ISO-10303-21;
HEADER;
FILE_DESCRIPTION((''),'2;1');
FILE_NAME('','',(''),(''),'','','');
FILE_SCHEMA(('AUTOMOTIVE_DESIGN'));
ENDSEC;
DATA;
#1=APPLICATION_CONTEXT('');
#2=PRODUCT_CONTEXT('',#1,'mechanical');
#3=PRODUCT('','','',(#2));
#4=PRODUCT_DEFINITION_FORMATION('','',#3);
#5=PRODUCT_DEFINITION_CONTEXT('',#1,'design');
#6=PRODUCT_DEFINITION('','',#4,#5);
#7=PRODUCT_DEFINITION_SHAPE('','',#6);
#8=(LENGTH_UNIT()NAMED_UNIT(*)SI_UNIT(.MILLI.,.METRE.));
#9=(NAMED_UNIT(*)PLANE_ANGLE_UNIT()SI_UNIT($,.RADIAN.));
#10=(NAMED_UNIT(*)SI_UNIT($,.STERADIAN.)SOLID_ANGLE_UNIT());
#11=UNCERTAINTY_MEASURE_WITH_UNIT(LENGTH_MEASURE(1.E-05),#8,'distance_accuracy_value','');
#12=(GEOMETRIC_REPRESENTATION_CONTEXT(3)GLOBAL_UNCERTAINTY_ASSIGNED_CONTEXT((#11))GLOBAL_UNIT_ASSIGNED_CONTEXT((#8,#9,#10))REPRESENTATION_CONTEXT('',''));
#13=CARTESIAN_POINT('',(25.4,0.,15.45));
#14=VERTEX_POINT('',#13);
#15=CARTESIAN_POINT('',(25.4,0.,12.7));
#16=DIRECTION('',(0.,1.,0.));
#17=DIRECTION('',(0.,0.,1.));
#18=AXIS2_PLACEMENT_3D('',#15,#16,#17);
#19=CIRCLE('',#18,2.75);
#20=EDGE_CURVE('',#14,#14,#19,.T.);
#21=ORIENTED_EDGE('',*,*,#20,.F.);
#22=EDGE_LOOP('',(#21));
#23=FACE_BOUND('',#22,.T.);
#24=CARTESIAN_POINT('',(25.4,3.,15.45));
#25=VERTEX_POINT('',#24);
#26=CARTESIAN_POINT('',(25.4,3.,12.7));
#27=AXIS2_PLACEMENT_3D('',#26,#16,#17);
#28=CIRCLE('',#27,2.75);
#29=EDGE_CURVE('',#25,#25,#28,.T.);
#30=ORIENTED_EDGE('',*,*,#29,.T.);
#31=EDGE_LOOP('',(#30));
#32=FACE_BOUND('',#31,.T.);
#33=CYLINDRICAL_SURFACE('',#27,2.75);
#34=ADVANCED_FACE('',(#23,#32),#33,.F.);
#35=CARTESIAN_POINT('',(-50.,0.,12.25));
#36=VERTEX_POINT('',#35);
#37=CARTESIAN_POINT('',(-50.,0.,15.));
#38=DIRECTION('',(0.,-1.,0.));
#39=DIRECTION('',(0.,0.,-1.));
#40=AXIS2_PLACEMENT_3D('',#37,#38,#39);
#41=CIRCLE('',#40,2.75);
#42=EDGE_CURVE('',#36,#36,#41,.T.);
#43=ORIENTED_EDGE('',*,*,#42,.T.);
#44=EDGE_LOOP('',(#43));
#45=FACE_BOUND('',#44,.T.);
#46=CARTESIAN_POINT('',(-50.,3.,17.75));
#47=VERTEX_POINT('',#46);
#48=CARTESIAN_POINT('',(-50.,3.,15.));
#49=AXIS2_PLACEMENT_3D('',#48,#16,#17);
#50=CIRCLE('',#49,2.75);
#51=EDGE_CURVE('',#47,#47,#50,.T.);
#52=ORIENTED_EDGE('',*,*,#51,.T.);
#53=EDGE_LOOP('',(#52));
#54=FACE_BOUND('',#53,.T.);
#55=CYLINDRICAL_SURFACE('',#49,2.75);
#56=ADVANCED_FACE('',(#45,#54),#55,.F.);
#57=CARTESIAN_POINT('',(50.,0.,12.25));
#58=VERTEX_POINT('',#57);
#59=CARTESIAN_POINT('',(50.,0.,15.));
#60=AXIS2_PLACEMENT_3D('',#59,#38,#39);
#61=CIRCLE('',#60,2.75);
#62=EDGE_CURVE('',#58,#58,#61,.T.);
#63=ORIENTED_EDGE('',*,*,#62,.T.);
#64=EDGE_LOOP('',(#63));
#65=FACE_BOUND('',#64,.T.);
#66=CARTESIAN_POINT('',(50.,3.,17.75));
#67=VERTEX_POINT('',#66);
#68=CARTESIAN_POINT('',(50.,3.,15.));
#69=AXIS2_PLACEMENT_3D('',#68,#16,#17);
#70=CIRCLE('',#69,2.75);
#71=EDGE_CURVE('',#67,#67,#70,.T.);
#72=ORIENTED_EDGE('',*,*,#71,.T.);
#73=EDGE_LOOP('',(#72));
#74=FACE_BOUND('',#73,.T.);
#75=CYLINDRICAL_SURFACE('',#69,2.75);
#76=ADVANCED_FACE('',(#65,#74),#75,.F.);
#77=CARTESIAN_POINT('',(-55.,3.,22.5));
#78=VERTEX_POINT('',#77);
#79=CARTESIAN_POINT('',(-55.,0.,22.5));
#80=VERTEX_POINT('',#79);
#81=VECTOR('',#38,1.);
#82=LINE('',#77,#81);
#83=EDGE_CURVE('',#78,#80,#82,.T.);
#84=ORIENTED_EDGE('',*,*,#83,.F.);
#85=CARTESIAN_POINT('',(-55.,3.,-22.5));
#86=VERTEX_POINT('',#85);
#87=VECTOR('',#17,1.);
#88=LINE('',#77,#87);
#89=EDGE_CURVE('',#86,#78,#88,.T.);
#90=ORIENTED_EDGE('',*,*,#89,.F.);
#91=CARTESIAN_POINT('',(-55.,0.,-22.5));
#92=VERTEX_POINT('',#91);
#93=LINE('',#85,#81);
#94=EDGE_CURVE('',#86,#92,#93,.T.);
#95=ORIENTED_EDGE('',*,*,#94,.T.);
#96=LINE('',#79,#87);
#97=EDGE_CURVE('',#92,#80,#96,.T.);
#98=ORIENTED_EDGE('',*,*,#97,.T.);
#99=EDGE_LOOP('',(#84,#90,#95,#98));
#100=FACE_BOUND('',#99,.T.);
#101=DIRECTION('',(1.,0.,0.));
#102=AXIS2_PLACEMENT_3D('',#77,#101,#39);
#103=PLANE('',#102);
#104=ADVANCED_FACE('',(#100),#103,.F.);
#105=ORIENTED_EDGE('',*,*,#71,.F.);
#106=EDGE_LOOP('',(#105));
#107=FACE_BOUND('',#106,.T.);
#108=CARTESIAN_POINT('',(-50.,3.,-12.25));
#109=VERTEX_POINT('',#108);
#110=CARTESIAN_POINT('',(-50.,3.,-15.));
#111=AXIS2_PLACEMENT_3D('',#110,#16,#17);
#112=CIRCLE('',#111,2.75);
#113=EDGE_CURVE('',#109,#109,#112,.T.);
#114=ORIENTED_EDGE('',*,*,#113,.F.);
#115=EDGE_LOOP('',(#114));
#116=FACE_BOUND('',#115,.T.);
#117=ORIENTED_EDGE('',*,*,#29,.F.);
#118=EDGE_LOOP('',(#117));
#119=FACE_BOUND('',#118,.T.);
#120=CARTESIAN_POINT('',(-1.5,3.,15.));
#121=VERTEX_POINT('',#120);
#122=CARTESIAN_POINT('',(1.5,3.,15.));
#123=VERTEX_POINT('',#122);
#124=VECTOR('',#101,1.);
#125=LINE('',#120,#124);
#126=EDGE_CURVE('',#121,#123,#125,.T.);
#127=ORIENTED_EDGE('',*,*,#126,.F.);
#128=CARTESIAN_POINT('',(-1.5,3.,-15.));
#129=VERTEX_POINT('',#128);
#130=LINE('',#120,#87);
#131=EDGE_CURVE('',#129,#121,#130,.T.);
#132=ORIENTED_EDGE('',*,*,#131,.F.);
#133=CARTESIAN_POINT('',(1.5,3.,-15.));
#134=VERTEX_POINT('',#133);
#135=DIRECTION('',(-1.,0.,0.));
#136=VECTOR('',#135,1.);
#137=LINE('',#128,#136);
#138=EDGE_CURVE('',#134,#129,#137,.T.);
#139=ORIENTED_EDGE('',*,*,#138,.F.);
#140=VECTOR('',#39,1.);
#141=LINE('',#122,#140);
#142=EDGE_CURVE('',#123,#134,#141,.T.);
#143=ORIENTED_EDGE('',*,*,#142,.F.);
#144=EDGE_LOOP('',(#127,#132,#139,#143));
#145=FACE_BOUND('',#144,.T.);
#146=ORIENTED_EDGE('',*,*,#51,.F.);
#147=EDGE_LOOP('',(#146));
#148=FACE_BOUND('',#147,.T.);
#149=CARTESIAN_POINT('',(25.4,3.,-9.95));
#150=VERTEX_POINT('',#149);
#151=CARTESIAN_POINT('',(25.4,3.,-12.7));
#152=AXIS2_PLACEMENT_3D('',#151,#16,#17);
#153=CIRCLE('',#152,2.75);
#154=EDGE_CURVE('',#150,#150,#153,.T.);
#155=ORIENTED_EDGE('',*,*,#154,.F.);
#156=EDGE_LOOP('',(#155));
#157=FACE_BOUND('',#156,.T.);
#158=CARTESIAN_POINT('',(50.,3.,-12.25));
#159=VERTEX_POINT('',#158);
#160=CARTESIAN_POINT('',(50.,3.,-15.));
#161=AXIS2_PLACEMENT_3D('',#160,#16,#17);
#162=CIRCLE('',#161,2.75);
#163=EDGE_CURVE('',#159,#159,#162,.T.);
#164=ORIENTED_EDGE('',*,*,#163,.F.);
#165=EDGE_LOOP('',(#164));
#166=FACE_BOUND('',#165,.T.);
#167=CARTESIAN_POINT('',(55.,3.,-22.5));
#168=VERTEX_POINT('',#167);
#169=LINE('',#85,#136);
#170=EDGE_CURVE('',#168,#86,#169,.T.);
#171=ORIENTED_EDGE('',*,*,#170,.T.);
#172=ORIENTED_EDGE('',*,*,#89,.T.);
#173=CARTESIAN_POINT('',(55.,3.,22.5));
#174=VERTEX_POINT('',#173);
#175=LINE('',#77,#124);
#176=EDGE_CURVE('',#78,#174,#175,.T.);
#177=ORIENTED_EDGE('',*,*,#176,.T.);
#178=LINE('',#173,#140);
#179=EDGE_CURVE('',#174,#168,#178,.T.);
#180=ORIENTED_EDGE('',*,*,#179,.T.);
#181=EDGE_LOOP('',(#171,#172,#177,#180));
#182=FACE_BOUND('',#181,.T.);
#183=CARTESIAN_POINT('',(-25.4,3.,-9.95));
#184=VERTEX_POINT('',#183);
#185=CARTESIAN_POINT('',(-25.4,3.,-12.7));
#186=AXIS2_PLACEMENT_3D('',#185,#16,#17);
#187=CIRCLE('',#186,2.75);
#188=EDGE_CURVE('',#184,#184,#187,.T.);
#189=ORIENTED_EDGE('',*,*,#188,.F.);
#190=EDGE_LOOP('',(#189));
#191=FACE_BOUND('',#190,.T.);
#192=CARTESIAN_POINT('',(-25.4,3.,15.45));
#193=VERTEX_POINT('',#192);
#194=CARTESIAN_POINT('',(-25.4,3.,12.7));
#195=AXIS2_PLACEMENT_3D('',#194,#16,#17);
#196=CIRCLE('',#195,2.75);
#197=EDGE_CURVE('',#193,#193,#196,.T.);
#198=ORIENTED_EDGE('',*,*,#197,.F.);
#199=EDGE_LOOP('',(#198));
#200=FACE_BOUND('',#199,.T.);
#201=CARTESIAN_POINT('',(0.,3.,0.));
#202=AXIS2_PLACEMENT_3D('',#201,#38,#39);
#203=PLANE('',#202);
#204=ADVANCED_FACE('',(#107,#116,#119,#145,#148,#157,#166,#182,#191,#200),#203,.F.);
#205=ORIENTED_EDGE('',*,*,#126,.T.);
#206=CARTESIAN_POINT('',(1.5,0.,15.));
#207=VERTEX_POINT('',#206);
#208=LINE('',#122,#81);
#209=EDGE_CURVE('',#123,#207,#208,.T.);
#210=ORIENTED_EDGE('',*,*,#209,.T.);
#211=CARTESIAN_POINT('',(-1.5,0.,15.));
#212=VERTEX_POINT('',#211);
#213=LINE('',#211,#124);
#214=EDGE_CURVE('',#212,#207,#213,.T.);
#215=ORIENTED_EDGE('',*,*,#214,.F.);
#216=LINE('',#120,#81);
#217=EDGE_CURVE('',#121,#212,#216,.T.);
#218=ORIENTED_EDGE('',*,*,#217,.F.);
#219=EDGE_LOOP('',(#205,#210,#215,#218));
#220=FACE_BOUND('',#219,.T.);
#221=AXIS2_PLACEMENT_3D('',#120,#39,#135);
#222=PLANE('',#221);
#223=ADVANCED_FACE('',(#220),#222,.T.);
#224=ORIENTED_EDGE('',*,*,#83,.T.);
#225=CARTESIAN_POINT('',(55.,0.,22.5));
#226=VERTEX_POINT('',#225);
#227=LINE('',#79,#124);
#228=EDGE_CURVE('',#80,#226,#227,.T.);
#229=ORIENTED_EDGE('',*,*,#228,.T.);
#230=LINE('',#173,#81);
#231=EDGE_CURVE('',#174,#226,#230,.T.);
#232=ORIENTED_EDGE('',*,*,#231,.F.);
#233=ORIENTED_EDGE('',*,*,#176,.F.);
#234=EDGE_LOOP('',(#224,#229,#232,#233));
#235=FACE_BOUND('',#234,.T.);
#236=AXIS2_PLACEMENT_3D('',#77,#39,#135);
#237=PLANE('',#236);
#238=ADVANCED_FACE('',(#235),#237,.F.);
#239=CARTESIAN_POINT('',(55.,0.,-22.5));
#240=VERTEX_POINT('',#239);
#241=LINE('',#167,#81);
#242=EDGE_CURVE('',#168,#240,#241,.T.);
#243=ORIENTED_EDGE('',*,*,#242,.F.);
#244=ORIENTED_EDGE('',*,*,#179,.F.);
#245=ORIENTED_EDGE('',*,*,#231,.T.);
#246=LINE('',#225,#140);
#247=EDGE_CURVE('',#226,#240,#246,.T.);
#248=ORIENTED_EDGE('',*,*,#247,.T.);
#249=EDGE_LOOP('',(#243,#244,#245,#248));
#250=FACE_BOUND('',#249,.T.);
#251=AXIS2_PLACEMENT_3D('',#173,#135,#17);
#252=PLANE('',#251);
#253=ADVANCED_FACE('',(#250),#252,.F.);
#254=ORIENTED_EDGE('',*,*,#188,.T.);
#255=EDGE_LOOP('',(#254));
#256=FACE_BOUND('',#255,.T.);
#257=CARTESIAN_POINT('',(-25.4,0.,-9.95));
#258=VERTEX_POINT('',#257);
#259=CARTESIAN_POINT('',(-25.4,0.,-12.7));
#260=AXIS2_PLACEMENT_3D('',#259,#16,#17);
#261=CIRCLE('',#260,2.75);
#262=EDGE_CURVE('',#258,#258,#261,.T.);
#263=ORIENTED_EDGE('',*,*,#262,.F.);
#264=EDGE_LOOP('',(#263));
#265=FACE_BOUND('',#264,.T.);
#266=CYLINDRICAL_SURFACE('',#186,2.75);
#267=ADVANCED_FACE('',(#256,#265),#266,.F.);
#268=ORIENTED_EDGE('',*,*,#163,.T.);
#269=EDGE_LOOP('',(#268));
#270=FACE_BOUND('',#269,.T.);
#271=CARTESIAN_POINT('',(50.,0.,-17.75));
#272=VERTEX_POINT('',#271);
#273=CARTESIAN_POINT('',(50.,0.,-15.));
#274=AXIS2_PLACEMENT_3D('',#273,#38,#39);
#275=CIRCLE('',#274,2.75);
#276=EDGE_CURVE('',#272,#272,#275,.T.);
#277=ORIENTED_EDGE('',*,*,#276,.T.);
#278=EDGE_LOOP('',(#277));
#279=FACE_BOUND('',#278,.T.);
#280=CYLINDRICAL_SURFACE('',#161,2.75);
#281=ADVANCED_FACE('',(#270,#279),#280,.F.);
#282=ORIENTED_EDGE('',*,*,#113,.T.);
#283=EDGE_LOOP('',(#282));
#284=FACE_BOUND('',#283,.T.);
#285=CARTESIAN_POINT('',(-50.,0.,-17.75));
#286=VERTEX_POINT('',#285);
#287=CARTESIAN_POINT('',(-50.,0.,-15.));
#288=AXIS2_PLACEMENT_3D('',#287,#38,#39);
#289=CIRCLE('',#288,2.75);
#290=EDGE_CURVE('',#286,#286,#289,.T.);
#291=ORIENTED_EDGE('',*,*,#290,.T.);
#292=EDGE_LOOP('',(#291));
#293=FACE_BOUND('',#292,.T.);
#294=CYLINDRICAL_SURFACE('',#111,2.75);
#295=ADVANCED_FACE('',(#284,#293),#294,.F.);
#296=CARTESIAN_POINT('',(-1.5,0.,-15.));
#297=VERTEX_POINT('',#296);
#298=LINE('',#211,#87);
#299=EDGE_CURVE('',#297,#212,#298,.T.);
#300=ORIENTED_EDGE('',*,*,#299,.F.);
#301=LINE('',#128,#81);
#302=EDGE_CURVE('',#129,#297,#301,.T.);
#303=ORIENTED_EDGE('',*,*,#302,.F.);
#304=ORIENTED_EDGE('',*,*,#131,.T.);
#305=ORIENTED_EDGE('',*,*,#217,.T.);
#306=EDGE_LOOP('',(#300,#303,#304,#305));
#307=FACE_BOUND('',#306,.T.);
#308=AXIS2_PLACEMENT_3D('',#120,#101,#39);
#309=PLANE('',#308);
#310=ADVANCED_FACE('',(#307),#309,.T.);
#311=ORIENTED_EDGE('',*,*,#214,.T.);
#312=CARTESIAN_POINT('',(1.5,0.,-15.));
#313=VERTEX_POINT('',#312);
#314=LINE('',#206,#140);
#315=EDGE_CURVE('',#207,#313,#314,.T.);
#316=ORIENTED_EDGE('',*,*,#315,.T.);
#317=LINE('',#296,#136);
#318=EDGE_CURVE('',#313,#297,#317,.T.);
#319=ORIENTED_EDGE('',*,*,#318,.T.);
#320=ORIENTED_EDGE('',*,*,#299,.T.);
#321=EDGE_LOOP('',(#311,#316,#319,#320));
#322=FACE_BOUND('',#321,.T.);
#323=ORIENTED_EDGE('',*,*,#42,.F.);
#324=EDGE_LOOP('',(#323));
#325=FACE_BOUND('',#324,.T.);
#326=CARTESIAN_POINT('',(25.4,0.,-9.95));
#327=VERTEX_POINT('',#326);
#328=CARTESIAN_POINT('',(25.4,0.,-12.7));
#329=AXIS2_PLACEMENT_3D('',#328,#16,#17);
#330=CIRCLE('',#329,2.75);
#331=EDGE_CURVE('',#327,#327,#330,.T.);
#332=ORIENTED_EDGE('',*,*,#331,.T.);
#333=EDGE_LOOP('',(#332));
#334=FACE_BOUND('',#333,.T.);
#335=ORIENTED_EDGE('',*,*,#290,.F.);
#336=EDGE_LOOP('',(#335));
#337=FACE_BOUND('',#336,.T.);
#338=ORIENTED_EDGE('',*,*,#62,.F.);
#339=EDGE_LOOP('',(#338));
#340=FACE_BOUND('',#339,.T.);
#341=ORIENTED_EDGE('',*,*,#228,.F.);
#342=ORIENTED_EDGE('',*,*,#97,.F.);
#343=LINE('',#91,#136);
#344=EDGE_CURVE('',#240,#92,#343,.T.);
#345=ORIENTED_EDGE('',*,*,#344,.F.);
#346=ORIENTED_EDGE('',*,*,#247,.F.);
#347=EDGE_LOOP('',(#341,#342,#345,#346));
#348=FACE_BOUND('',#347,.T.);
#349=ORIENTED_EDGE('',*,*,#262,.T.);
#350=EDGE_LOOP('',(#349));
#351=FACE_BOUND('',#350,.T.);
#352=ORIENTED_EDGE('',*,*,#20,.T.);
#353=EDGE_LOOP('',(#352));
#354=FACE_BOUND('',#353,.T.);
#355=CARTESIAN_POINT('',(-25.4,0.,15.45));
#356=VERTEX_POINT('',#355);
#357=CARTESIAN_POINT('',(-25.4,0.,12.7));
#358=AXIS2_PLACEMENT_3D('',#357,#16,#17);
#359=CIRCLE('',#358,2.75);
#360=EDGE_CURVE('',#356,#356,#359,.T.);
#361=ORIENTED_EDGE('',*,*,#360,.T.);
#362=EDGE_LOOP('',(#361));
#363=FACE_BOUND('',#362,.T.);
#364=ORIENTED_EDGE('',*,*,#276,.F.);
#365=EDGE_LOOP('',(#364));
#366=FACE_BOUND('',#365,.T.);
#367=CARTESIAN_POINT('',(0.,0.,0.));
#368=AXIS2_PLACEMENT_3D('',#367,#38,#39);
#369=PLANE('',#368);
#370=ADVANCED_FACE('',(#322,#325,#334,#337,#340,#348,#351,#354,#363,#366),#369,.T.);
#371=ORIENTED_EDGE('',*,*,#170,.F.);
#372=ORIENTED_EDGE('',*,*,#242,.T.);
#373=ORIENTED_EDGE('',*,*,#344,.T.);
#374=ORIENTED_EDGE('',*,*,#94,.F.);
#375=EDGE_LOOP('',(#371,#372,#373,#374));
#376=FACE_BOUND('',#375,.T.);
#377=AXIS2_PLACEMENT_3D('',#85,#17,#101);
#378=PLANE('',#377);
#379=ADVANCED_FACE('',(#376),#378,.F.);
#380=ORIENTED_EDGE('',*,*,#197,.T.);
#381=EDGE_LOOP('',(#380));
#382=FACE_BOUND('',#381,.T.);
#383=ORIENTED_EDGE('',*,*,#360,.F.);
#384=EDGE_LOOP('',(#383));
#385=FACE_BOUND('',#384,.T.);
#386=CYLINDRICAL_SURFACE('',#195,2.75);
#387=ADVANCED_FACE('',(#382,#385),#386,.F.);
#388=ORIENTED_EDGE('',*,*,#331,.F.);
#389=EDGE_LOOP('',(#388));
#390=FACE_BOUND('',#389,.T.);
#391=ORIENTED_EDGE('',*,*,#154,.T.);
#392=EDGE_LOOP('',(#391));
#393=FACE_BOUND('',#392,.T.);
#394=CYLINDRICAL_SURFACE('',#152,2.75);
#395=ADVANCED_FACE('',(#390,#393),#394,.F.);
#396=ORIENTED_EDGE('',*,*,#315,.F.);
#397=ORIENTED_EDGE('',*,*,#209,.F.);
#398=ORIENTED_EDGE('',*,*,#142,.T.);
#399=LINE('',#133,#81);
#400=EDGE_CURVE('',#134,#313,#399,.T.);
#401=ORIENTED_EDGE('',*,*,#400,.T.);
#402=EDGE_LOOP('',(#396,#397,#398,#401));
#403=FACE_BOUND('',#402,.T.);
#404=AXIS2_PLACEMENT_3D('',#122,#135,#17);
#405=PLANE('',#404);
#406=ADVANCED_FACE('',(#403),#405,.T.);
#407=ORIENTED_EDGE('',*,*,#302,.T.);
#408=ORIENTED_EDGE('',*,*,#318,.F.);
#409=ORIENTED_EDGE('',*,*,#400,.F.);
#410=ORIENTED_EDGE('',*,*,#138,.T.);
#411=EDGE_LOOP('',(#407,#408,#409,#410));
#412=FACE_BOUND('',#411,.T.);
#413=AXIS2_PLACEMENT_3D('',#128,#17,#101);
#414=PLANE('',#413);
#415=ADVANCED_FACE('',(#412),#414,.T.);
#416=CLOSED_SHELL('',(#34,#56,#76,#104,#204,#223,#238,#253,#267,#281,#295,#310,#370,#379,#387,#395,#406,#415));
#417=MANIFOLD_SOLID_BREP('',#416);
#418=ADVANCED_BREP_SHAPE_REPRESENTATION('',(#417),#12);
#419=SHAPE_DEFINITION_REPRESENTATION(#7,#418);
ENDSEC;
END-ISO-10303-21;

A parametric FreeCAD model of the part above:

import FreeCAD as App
import Part
import Sketcher

doc = App.newDocument("Part")
body = doc.addObject("PartDesign::Body", "Body")

# Sketch on XZ plane
sketch1 = body.newObject("Sketcher::SketchObject", "Sketch")
sketch1.AttachmentSupport = (doc.getObject("XZ_Plane"), [""])
sketch1.MapMode = "FlatFace"
sketch1.addGeometry([
    Part.LineSegment(App.Vector(-55, -22.5, 0), App.Vector(-55, 22.5, 0)),  # 0
    Part.LineSegment(App.Vector(-55, 22.5, 0), App.Vector(55, 22.5, 0)),  # 1
    Part.LineSegment(App.Vector(55, 22.5, 0), App.Vector(55, -22.5, 0)),  # 2
    Part.LineSegment(App.Vector(55, -22.5, 0), App.Vector(-55, -22.5, 0)),  # 3
    Part.LineSegment(App.Vector(1.5, 15, 0), App.Vector(-1.5, 15, 0)),  # 4
    Part.LineSegment(App.Vector(-1.5, 15, 0), App.Vector(-1.5, -15, 0)),  # 5
    Part.LineSegment(App.Vector(-1.5, -15, 0), App.Vector(1.5, -15, 0)),  # 6
    Part.LineSegment(App.Vector(1.5, -15, 0), App.Vector(1.5, 15, 0)),  # 7
], False)
sketch1.addConstraint([
    Sketcher.Constraint("Coincident", 0, 2, 1, 1),
    Sketcher.Constraint("Coincident", 1, 2, 2, 1),
    Sketcher.Constraint("Coincident", 2, 2, 3, 1),
    Sketcher.Constraint("Coincident", 3, 2, 0, 1),
    Sketcher.Constraint("Coincident", 4, 2, 5, 1),
    Sketcher.Constraint("Coincident", 5, 2, 6, 1),
    Sketcher.Constraint("Coincident", 6, 2, 7, 1),
    Sketcher.Constraint("Coincident", 7, 2, 4, 1),
    Sketcher.Constraint("Vertical", 0),
    Sketcher.Constraint("Horizontal", 1),
    Sketcher.Constraint("Vertical", 2),
    Sketcher.Constraint("Horizontal", 3),
    Sketcher.Constraint("Horizontal", 4),
    Sketcher.Constraint("Vertical", 5),
    Sketcher.Constraint("Horizontal", 6),
    Sketcher.Constraint("Vertical", 7),
    Sketcher.Constraint("Symmetric", 0, 2, 2, 2, -1, 1),
    Sketcher.Constraint("Symmetric", 4, 2, 6, 2, -1, 1),
    Sketcher.Constraint("DistanceX", 1, 1, 1, 2, 110.0),
    Sketcher.Constraint("DistanceX", 4, 2, 4, 1, 3.0),
    Sketcher.Constraint("DistanceY", 0, 1, 0, 2, 45.0),
    Sketcher.Constraint("DistanceY", 5, 2, 5, 1, 30.0),
])
pad1 = body.newObject("PartDesign::Pad", "Pad")
pad1.Profile = sketch1
pad1.Length = 3
pad1.Reversed = True

# Sketch on XZ plane
sketch2 = body.newObject("Sketcher::SketchObject", "Sketch001")
sketch2.AttachmentSupport = (doc.getObject("XZ_Plane"), [""])
sketch2.MapMode = "FlatFace"
sketch2.AttachmentOffset = App.Placement(App.Vector(0, 0, -3), App.Rotation())
sketch2.addGeometry([
    Part.Circle(App.Vector(50, -15, 0), App.Vector(0, 0, 1), 2.8),
    Part.Circle(App.Vector(-50, 15, 0), App.Vector(0, 0, 1), 2.8),
    Part.Circle(App.Vector(-50, -15, 0), App.Vector(0, 0, 1), 2.8),
    Part.Circle(App.Vector(50, 15, 0), App.Vector(0, 0, 1), 2.8),
], False)
sketch2.addConstraint([
    Sketcher.Constraint("Equal", 0, 1),
    Sketcher.Constraint("Equal", 1, 2),
    Sketcher.Constraint("Equal", 2, 3),
    Sketcher.Constraint("Symmetric", 0, 3, 1, 3, -1, 1),
    Sketcher.Constraint("Symmetric", 2, 3, 3, 3, -1, 1),
    Sketcher.Constraint("Symmetric", 0, 3, 2, 3, -2),
    Sketcher.Constraint("Diameter", 0, 5.5),
    Sketcher.Constraint("DistanceX", -1, 1, 0, 3, 50.0),
    Sketcher.Constraint("DistanceY", 0, 3, -1, 1, 15.0),
])
doc.recompute()
hole = body.newObject("PartDesign::Hole", "Hole")
hole.Profile = sketch2
hole.ThreadType = "None"
hole.Diameter = 5.5
hole.DepthType = "Dimension"
hole.Depth = 12.4
hole.DrillPoint = "Angled"
hole.DrillPointAngle = 118
hole.Reversed = True

# Sketch on XZ plane
sketch3 = body.newObject("Sketcher::SketchObject", "Sketch002")
sketch3.AttachmentSupport = (doc.getObject("XZ_Plane"), [""])
sketch3.MapMode = "FlatFace"
sketch3.AttachmentOffset = App.Placement(App.Vector(0, 0, -3), App.Rotation())
sketch3.addGeometry([
    Part.Circle(App.Vector(-25.4, 12.7, 0), App.Vector(0, 0, 1), 2.8),
    Part.Circle(App.Vector(25.4, -12.7, 0), App.Vector(0, 0, 1), 2.8),
    Part.Circle(App.Vector(-25.4, -12.7, 0), App.Vector(0, 0, 1), 2.8),
    Part.Circle(App.Vector(25.4, 12.7, 0), App.Vector(0, 0, 1), 2.8),
], False)
sketch3.addConstraint([
    Sketcher.Constraint("Equal", 0, 1),
    Sketcher.Constraint("Equal", 1, 2),
    Sketcher.Constraint("Equal", 2, 3),
    Sketcher.Constraint("Symmetric", 0, 3, 1, 3, -1, 1),
    Sketcher.Constraint("Symmetric", 2, 3, 3, 3, -1, 1),
    Sketcher.Constraint("Symmetric", 1, 3, 2, 3, -2),
    Sketcher.Constraint("Diameter", 0, 5.5),
    Sketcher.Constraint("DistanceX", 0, 3, -1, 1, 25.4),
    Sketcher.Constraint("DistanceY", -1, 1, 0, 3, 12.7),
])
doc.recompute()
hole2 = body.newObject("PartDesign::Hole", "Hole001")
hole2.Profile = sketch3
hole2.ThreadType = "None"
hole2.Diameter = 5.5
hole2.DepthType = "ThroughAll"
hole2.Reversed = True

doc.recompute()
